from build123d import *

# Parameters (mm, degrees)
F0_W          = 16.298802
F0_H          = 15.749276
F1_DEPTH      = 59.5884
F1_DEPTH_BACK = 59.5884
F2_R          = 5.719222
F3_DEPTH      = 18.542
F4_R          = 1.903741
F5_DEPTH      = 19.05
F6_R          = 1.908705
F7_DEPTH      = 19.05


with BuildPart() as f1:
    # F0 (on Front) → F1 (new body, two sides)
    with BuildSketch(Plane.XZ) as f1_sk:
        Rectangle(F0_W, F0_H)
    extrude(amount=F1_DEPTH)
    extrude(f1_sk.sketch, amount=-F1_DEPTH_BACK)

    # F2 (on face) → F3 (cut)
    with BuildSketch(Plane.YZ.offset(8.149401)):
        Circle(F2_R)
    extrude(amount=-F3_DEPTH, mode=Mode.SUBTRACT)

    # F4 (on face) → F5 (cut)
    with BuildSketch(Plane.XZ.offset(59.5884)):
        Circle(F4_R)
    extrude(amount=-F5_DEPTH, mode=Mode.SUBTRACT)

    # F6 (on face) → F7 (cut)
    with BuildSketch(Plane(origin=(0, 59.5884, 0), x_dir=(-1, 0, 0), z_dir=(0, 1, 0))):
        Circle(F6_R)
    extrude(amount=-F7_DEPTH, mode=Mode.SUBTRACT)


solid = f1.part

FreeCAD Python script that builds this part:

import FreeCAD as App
import Part
import Sketcher
from FreeCAD import Vector
Q = App.Units.Quantity


def add_polygon(sketch, points):
    """Adds a closed chain of lines whose ends are joined by coincident constraints."""
    first, n = sketch.GeometryCount, len(points)
    for a, b in zip(points, points[1:] + points[:1]):
        sketch.addGeometry(Part.LineSegment(App.Vector(*a, 0), App.Vector(*b, 0)), False)
    for i in range(n):
        sketch.addConstraint(Sketcher.Constraint("Coincident", first + i, 2, first + (i + 1) % n, 1))

doc = App.newDocument("Part")
body = doc.addObject("PartDesign::Body", "Body")

sketch1 = doc.addObject("Sketcher::SketchObject", "Sketch")
body.addObject(sketch1)
sketch1.AttachmentSupport = (doc.XZ_Plane, [""])
sketch1.MapMode = "FlatFace"
add_polygon(sketch1, [(-8, 8), (-8, -8), (8, -8), (8, 8)])
sketch1.addConstraint([
    Sketcher.Constraint("Vertical", 0),
    Sketcher.Constraint("Horizontal", 1),
    Sketcher.Constraint("Vertical", 2),
    Sketcher.Constraint("Horizontal", 3),
    Sketcher.Constraint("Symmetric", 0, 2, 2, 2, -1, 1),
    Sketcher.Constraint("DistanceX", 1, 1, 1, 2, 16.298802),
    Sketcher.Constraint("DistanceY", 0, 2, 0, 1, 15.749276),
])
pad1 = doc.addObject("PartDesign::Pad", "Pad")
body.addObject(pad1)
pad1.Profile = sketch1
pad1.Type = "TwoLengths"
pad1.Length = Q("2.346 in")
pad1.Length2 = Q("2.346 in")

sketch2 = doc.addObject("Sketcher::SketchObject", "Sketch001")
body.addObject(sketch2)
sketch2.AttachmentSupport = (doc.YZ_Plane, [""])
sketch2.MapMode = "FlatFace"
sketch2.AttachmentOffset = App.Placement(Vector(0, 0, 8.149401), App.Rotation())
sketch2.addGeometry(Part.Circle(Vector(0, 0, 0), Vector(0, 0, 1), 6), False)
sketch2.addConstraint([
    Sketcher.Constraint("Coincident", 0, 3, -1, 1),
    Sketcher.Constraint("Diameter", 0, 11.438444),
])
pocket1 = doc.addObject("PartDesign::Pocket", "Pocket")
body.addObject(pocket1)
pocket1.Profile = sketch2
pocket1.Length = Q("0.73 in")

sketch3 = doc.addObject("Sketcher::SketchObject", "Sketch002")
body.addObject(sketch3)
sketch3.AttachmentSupport = (doc.XZ_Plane, [""])
sketch3.MapMode = "FlatFace"
sketch3.AttachmentOffset = App.Placement(Vector(0, 0, 2.346 * 25.4), App.Rotation())
sketch3.addGeometry(Part.Circle(Vector(0, 0, 0), Vector(0, 0, 1), 1.9), False)
sketch3.addConstraint([
    Sketcher.Constraint("Coincident", 0, 3, -1, 1),
    Sketcher.Constraint("Diameter", 0, 3.807482),
])
pocket2 = doc.addObject("PartDesign::Pocket", "Pocket001")
body.addObject(pocket2)
pocket2.Profile = sketch3
pocket2.Length = Q("0.75 in")

sketch4 = doc.addObject("Sketcher::SketchObject", "Sketch003")
body.addObject(sketch4)
sketch4.AttachmentSupport = (doc.XZ_Plane, [""])
sketch4.MapMode = "FlatFace"
sketch4.AttachmentOffset = App.Placement(Vector(0, 0, -2.346 * 25.4), App.Rotation())
sketch4.addGeometry(Part.Circle(Vector(0, 0, 0), Vector(0, 0, 1), 1.9), False)
sketch4.addConstraint([
    Sketcher.Constraint("Coincident", 0, 3, -1, 1),
    Sketcher.Constraint("Diameter", 0, 3.81741),
])
pocket3 = doc.addObject("PartDesign::Pocket", "Pocket002")
body.addObject(pocket3)
pocket3.Profile = sketch4
pocket3.Length = Q("0.75 in")
pocket3.Reversed = True

doc.recompute()
